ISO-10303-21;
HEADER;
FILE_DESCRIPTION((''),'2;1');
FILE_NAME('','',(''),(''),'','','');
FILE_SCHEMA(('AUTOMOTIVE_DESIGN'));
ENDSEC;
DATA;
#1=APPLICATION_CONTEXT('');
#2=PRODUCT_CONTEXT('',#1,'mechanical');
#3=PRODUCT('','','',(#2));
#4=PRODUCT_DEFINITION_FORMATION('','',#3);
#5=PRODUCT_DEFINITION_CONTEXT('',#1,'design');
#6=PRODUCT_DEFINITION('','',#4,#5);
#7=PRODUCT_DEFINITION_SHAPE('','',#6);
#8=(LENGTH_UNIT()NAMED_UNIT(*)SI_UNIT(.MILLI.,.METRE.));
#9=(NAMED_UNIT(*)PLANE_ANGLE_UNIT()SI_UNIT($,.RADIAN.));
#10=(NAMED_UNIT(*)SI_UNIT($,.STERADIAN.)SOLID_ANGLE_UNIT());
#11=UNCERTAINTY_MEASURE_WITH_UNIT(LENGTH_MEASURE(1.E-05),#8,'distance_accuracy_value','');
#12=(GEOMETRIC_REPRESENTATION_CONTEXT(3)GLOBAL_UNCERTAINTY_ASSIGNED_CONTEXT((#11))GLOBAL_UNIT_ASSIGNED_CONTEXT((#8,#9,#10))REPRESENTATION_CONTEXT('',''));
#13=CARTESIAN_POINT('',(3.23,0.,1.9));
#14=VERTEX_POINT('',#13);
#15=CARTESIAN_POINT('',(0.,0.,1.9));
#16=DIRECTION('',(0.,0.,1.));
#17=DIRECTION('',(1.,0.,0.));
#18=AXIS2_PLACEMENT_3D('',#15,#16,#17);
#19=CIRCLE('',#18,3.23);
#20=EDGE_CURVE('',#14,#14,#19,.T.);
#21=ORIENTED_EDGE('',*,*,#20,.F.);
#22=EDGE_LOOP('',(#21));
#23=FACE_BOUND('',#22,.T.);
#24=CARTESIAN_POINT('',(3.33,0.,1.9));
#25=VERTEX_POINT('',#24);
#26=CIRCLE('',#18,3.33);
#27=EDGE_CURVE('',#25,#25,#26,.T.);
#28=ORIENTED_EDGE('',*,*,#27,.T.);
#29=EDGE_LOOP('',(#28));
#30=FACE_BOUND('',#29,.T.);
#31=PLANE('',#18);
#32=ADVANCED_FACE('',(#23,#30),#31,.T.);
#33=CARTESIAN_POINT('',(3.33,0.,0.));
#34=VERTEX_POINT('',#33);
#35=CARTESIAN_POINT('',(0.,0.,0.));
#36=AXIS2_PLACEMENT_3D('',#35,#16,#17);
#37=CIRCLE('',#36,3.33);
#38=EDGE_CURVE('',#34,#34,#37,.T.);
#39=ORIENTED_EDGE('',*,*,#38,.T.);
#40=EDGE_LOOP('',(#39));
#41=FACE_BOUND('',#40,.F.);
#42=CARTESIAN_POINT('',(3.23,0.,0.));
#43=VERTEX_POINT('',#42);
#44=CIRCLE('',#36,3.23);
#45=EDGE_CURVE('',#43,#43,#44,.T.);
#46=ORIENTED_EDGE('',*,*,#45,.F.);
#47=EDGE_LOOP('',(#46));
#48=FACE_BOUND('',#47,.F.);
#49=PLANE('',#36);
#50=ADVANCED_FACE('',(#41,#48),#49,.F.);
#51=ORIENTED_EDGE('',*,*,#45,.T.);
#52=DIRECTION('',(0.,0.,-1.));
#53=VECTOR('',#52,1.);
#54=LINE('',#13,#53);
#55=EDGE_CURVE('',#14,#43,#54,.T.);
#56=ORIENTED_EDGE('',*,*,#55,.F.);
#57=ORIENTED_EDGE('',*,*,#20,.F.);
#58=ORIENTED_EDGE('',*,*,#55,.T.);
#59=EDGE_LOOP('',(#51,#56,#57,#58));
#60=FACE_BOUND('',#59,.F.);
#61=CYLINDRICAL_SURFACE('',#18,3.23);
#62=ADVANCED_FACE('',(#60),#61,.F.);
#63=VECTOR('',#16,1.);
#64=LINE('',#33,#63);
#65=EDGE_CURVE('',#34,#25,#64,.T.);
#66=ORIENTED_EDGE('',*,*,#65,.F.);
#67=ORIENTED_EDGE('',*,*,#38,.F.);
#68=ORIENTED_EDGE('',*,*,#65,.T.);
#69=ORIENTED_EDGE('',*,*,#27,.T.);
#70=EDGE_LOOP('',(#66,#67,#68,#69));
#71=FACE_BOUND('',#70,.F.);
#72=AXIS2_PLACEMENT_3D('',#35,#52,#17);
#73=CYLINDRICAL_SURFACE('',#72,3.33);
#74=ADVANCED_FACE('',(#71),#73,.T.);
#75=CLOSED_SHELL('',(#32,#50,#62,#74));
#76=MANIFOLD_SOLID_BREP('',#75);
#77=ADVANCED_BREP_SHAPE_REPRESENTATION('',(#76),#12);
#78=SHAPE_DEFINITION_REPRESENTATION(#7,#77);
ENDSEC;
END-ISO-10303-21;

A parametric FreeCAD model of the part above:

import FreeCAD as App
import Part
import Sketcher
from FreeCAD import Vector

doc = App.newDocument("Part")
params = doc.addObject("Spreadsheet::Sheet", "Params")
for row, (alias, value) in enumerate([
    ("sketch1_diameter", "6.66 mm"),
    ("pad1_length", "1.9 mm"),
    ("sketch2_diameter", "6.46 mm"),
], start=1):
    params.set(f"A{row}", alias)
    params.set(f"B{row}", "=" + value)
    params.setAlias(f"B{row}", alias)

body = doc.addObject("PartDesign::Body", "Body")

# Sketch on XY plane
sketch1 = body.newObject("Sketcher::SketchObject", "Sketch")
sketch1.AttachmentSupport = (doc.getObject("XY_Plane"), [""])
sketch1.MapMode = "FlatFace"
sketch1.addGeometry(Part.Circle(Vector(0, 0, 0), Vector(0, 0, 1), 3.3), False)
sketch1.addConstraint([
    Sketcher.Constraint("Coincident", 0, 3, -1, 1),
    Sketcher.Constraint("Diameter", 0, 6.66),
])
sketch1.setExpression("Constraints[1]", "Params.sketch1_diameter")
pad1 = body.newObject("PartDesign::Pad", "Pad")
pad1.Profile = sketch1
pad1.setExpression("Length", "Params.pad1_length")

# Sketch on XY plane
sketch2 = body.newObject("Sketcher::SketchObject", "Sketch001")
sketch2.AttachmentSupport = (doc.getObject("XY_Plane"), [""])
sketch2.MapMode = "FlatFace"
sketch2.AttachmentOffset = App.Placement(Vector(0, 0, 1.9), App.Rotation())
sketch2.addGeometry(Part.Circle(Vector(0, 0, 0), Vector(0, 0, 1), 3.2), False)
sketch2.addConstraint([
    Sketcher.Constraint("Coincident", 0, 3, -1, 1),
    Sketcher.Constraint("Diameter", 0, 6.46),
])
sketch2.setExpression("Constraints[1]", "Params.sketch2_diameter")
pocket1 = body.newObject("PartDesign::Pocket", "Pocket")
pocket1.Profile = sketch2
pocket1.Type = "ThroughAll"

doc.recompute()
